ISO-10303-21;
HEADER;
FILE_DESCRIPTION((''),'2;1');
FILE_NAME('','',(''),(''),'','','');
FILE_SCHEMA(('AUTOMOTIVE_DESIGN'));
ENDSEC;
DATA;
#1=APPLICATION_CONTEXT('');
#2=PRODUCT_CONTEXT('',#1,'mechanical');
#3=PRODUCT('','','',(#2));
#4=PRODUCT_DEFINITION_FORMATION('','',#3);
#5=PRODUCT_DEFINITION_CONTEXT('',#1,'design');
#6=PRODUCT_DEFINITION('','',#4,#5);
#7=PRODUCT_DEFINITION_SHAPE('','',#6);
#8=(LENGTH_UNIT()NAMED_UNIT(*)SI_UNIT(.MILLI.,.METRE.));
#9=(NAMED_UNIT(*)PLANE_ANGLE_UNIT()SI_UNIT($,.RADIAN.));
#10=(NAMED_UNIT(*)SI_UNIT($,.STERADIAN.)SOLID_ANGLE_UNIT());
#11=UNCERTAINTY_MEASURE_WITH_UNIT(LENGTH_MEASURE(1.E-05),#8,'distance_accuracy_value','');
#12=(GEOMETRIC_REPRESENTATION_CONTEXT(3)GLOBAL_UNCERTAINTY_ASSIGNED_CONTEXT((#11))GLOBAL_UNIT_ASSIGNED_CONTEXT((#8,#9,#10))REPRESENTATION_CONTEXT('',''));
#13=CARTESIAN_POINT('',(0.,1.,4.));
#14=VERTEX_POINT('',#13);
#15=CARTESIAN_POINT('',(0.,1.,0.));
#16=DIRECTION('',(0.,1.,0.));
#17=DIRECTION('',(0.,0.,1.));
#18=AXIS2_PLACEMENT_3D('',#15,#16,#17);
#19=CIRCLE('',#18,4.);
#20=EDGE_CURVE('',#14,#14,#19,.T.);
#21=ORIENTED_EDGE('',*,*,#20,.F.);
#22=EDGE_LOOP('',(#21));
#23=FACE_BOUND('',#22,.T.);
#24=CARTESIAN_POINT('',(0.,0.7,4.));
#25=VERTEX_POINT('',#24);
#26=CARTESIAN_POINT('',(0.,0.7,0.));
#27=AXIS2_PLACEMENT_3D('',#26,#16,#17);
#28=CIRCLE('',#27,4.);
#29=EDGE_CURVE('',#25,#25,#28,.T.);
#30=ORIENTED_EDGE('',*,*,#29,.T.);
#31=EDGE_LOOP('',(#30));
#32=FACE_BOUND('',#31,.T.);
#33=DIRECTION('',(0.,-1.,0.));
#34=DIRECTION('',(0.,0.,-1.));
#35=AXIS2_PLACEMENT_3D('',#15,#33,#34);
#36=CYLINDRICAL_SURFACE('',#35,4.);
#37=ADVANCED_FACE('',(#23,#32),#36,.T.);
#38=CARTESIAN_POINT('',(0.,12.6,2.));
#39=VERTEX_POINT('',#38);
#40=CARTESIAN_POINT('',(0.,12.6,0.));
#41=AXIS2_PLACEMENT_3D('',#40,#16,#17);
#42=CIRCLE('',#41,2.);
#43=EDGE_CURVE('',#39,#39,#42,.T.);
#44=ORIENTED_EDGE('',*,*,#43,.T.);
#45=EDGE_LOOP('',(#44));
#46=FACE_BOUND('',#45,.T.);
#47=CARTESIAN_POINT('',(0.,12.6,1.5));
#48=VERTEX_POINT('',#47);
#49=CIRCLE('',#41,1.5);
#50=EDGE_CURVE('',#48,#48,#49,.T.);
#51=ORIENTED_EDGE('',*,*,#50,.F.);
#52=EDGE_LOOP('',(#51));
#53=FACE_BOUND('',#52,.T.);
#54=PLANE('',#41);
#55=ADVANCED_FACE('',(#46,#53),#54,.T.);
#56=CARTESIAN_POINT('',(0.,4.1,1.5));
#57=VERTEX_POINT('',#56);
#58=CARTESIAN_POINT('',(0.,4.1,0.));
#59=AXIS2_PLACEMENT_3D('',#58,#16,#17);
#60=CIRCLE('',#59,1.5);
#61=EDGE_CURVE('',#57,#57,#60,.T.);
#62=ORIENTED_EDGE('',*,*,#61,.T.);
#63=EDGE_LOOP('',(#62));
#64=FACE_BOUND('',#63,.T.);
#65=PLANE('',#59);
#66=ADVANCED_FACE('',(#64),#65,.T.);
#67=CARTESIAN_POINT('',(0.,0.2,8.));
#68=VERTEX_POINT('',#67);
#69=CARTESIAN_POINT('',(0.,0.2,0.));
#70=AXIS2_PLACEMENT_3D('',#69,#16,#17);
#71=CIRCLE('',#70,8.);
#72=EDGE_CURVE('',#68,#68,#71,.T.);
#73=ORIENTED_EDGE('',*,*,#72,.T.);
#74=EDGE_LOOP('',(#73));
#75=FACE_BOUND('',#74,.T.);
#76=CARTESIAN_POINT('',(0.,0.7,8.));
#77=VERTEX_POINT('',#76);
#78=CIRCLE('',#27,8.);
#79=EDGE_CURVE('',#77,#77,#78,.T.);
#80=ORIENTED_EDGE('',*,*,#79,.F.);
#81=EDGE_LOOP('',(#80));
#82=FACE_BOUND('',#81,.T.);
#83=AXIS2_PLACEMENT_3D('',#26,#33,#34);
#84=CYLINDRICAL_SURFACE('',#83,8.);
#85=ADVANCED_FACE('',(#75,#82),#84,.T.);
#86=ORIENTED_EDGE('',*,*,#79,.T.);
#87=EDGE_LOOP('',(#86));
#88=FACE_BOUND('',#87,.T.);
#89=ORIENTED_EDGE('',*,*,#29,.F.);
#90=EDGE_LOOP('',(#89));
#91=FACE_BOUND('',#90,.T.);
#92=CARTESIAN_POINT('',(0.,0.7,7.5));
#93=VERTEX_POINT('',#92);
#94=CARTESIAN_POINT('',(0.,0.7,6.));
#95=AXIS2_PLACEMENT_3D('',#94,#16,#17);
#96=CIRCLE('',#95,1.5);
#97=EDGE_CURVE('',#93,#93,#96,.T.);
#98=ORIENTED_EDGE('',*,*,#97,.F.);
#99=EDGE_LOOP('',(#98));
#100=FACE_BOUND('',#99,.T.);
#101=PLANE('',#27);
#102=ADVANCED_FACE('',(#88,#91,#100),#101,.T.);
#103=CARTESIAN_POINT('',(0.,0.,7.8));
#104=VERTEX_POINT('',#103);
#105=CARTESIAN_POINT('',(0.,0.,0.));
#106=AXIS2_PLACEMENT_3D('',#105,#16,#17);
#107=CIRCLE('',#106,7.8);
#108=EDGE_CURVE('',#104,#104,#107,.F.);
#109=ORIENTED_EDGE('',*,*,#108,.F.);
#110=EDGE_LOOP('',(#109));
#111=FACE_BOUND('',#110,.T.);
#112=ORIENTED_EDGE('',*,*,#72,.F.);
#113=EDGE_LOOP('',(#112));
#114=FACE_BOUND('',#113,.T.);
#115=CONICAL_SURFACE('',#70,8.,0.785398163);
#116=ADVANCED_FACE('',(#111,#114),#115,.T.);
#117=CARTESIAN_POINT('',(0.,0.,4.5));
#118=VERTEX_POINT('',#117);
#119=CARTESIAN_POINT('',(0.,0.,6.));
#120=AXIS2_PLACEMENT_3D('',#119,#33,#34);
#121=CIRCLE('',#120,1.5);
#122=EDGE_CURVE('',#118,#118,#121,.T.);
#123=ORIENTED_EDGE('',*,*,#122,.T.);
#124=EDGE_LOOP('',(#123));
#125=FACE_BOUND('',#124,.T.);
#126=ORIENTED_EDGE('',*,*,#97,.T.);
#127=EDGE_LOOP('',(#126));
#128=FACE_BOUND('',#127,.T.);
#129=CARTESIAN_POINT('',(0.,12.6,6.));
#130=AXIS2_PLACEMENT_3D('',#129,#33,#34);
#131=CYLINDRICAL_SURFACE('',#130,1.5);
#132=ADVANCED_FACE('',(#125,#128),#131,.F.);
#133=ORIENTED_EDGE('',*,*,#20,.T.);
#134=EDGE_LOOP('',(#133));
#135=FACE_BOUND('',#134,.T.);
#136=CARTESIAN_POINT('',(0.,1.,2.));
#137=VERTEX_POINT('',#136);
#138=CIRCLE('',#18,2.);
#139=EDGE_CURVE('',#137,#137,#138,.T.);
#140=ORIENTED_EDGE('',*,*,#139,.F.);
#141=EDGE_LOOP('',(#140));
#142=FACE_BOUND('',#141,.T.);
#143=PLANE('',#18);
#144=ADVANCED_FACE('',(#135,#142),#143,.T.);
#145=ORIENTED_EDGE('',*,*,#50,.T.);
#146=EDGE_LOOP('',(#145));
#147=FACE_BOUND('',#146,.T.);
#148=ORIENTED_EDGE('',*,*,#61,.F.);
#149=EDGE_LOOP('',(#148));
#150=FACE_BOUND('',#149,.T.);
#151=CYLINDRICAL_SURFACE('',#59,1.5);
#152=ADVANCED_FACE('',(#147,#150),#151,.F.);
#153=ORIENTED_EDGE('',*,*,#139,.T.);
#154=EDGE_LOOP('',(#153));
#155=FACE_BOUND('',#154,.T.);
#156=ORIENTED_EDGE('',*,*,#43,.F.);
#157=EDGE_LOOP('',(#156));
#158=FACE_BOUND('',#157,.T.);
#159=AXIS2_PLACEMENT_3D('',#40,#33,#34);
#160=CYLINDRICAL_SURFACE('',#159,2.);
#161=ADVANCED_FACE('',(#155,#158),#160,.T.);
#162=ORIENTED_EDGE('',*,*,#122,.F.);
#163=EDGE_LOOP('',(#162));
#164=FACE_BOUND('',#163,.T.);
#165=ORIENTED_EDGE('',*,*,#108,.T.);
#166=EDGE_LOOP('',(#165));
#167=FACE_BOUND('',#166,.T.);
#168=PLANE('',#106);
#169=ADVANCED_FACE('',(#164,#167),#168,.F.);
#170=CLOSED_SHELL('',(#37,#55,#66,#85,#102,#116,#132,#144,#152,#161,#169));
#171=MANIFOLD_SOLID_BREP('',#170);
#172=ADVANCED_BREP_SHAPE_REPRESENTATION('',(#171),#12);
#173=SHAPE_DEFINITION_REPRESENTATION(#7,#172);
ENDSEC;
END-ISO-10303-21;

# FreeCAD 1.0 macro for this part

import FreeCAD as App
import Part
import Sketcher

V = App.Vector
Q = App.Units.Quantity


def edges_at(feature, points):
    """Names of the edges that pass closest to the given points."""
    edges = feature.Shape.Edges
    near = lambda p: min(range(len(edges)), key=lambda i: edges[i].distToShape(Part.Vertex(*p))[0])
    return sorted({f"Edge{near(p) + 1}" for p in points})

doc = App.newDocument("Part")
body = doc.addObject("PartDesign::Body", "Body")

sketch1 = body.newObject("Sketcher::SketchObject", "Sketch")
sketch1.AttachmentSupport = (doc.getObject("XZ_Plane"), [""])
sketch1.MapMode = "FlatFace"
sketch1.addGeometry(Part.Circle(V(0, 0, 0), V(0, 0, 1), 8), False)
sketch1.addConstraint([
    Sketcher.Constraint("Coincident", 0, 3, -1, 1),
    Sketcher.Constraint("Diameter", 0, Q("16 mm")),
])
pad1 = body.newObject("PartDesign::Pad", "Pad")
pad1.Profile = sketch1
pad1.Length = 0.7
pad1.Reversed = True

sketch2 = body.newObject("Sketcher::SketchObject", "Sketch001")
sketch2.AttachmentSupport = (doc.getObject("XZ_Plane"), [""])
sketch2.MapMode = "FlatFace"
sketch2.AttachmentOffset = App.Placement(V(0, 0, -0.7), App.Rotation())
sketch2.addGeometry(Part.Circle(V(0, 0, 0), V(0, 0, 1), 4), False)
sketch2.addConstraint([
    Sketcher.Constraint("Coincident", 0, 3, -1, 1),
    Sketcher.Constraint("Diameter", 0, Q("8 mm")),
])
pad2 = body.newObject("PartDesign::Pad", "Pad001")
pad2.Profile = sketch2
pad2.Length = 0.3
pad2.Reversed = True

sketch3 = body.newObject("Sketcher::SketchObject", "Sketch002")
sketch3.AttachmentSupport = (doc.getObject("XZ_Plane"), [""])
sketch3.MapMode = "FlatFace"
sketch3.AttachmentOffset = App.Placement(V(0, 0, -1), App.Rotation())
sketch3.addGeometry(Part.Circle(V(0, 0, 0), V(0, 0, 1), 2), False)
sketch3.addConstraint([
    Sketcher.Constraint("Coincident", 0, 3, -1, 1),
    Sketcher.Constraint("Diameter", 0, Q("4 mm")),
])
pad3 = body.newObject("PartDesign::Pad", "Pad002")
pad3.Profile = sketch3
pad3.Length = 11.6
pad3.Reversed = True

sketch4 = body.newObject("Sketcher::SketchObject", "Sketch003")
sketch4.AttachmentSupport = (doc.getObject("XZ_Plane"), [""])
sketch4.MapMode = "FlatFace"
sketch4.AttachmentOffset = App.Placement(V(0, 0, -12.6), App.Rotation())
sketch4.addGeometry(Part.Circle(V(0, 0, 0), V(0, 0, 1), 1.5), False)
sketch4.addConstraint([
    Sketcher.Constraint("Coincident", 0, 3, -1, 1),
    Sketcher.Constraint("Diameter", 0, Q("3 mm")),
])
pocket1 = body.newObject("PartDesign::Pocket", "Pocket")
pocket1.Profile = sketch4
pocket1.Length = 8.5
pocket1.Reversed = True

sketch5 = body.newObject("Sketcher::SketchObject", "Sketch004")
sketch5.AttachmentSupport = (doc.getObject("XZ_Plane"), [""])
sketch5.MapMode = "FlatFace"
sketch5.addGeometry(Part.Circle(V(0, 6, 0), V(0, 0, 1), 1.5), False)
sketch5.addConstraint([
    Sketcher.Constraint("PointOnObject", 0, 3, -2),
    Sketcher.Constraint("Diameter", 0, Q("3 mm")),
    Sketcher.Constraint("DistanceY", -1, 1, 0, 3, Q("6 mm")),
])
pocket2 = body.newObject("PartDesign::Pocket", "Pocket001")
pocket2.Profile = sketch5
pocket2.Type = "ThroughAll"
doc.recompute()

chamfer = body.newObject("PartDesign::Chamfer", "Chamfer")
chamfer.Base = (pocket2, edges_at(pocket2, [(0, 0, -8)]))
chamfer.Size = 0.2

doc.recompute()
